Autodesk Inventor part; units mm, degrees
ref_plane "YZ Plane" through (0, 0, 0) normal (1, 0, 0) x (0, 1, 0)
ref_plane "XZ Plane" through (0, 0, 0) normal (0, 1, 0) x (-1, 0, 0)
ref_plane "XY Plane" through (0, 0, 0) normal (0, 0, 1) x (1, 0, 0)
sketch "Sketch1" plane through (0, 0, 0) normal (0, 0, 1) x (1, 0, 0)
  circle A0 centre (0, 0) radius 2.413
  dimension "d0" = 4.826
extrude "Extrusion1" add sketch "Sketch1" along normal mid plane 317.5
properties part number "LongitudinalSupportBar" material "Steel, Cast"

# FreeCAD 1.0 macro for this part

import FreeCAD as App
import Part
import Sketcher

V = App.Vector
Q = App.Units.Quantity

doc = App.newDocument("Part")
body = doc.addObject("PartDesign::Body", "Body")

sketch1 = body.newObject("Sketcher::SketchObject", "Sketch")
sketch1.AttachmentSupport = (doc.getObject("XY_Plane"), [""])
sketch1.MapMode = "FlatFace"
sketch1.addGeometry(Part.Circle(V(0, 0, 0), V(0, 0, 1), 2.4), False)
sketch1.addConstraint([
    Sketcher.Constraint("Coincident", 0, 3, -1, 1),
    Sketcher.Constraint("Diameter", 0, Q("0.19 in")),
])
pad1 = body.newObject("PartDesign::Pad", "Pad")
pad1.Profile = sketch1
pad1.Length = Q("12.5 in")
pad1.Midplane = True

doc.recompute()
